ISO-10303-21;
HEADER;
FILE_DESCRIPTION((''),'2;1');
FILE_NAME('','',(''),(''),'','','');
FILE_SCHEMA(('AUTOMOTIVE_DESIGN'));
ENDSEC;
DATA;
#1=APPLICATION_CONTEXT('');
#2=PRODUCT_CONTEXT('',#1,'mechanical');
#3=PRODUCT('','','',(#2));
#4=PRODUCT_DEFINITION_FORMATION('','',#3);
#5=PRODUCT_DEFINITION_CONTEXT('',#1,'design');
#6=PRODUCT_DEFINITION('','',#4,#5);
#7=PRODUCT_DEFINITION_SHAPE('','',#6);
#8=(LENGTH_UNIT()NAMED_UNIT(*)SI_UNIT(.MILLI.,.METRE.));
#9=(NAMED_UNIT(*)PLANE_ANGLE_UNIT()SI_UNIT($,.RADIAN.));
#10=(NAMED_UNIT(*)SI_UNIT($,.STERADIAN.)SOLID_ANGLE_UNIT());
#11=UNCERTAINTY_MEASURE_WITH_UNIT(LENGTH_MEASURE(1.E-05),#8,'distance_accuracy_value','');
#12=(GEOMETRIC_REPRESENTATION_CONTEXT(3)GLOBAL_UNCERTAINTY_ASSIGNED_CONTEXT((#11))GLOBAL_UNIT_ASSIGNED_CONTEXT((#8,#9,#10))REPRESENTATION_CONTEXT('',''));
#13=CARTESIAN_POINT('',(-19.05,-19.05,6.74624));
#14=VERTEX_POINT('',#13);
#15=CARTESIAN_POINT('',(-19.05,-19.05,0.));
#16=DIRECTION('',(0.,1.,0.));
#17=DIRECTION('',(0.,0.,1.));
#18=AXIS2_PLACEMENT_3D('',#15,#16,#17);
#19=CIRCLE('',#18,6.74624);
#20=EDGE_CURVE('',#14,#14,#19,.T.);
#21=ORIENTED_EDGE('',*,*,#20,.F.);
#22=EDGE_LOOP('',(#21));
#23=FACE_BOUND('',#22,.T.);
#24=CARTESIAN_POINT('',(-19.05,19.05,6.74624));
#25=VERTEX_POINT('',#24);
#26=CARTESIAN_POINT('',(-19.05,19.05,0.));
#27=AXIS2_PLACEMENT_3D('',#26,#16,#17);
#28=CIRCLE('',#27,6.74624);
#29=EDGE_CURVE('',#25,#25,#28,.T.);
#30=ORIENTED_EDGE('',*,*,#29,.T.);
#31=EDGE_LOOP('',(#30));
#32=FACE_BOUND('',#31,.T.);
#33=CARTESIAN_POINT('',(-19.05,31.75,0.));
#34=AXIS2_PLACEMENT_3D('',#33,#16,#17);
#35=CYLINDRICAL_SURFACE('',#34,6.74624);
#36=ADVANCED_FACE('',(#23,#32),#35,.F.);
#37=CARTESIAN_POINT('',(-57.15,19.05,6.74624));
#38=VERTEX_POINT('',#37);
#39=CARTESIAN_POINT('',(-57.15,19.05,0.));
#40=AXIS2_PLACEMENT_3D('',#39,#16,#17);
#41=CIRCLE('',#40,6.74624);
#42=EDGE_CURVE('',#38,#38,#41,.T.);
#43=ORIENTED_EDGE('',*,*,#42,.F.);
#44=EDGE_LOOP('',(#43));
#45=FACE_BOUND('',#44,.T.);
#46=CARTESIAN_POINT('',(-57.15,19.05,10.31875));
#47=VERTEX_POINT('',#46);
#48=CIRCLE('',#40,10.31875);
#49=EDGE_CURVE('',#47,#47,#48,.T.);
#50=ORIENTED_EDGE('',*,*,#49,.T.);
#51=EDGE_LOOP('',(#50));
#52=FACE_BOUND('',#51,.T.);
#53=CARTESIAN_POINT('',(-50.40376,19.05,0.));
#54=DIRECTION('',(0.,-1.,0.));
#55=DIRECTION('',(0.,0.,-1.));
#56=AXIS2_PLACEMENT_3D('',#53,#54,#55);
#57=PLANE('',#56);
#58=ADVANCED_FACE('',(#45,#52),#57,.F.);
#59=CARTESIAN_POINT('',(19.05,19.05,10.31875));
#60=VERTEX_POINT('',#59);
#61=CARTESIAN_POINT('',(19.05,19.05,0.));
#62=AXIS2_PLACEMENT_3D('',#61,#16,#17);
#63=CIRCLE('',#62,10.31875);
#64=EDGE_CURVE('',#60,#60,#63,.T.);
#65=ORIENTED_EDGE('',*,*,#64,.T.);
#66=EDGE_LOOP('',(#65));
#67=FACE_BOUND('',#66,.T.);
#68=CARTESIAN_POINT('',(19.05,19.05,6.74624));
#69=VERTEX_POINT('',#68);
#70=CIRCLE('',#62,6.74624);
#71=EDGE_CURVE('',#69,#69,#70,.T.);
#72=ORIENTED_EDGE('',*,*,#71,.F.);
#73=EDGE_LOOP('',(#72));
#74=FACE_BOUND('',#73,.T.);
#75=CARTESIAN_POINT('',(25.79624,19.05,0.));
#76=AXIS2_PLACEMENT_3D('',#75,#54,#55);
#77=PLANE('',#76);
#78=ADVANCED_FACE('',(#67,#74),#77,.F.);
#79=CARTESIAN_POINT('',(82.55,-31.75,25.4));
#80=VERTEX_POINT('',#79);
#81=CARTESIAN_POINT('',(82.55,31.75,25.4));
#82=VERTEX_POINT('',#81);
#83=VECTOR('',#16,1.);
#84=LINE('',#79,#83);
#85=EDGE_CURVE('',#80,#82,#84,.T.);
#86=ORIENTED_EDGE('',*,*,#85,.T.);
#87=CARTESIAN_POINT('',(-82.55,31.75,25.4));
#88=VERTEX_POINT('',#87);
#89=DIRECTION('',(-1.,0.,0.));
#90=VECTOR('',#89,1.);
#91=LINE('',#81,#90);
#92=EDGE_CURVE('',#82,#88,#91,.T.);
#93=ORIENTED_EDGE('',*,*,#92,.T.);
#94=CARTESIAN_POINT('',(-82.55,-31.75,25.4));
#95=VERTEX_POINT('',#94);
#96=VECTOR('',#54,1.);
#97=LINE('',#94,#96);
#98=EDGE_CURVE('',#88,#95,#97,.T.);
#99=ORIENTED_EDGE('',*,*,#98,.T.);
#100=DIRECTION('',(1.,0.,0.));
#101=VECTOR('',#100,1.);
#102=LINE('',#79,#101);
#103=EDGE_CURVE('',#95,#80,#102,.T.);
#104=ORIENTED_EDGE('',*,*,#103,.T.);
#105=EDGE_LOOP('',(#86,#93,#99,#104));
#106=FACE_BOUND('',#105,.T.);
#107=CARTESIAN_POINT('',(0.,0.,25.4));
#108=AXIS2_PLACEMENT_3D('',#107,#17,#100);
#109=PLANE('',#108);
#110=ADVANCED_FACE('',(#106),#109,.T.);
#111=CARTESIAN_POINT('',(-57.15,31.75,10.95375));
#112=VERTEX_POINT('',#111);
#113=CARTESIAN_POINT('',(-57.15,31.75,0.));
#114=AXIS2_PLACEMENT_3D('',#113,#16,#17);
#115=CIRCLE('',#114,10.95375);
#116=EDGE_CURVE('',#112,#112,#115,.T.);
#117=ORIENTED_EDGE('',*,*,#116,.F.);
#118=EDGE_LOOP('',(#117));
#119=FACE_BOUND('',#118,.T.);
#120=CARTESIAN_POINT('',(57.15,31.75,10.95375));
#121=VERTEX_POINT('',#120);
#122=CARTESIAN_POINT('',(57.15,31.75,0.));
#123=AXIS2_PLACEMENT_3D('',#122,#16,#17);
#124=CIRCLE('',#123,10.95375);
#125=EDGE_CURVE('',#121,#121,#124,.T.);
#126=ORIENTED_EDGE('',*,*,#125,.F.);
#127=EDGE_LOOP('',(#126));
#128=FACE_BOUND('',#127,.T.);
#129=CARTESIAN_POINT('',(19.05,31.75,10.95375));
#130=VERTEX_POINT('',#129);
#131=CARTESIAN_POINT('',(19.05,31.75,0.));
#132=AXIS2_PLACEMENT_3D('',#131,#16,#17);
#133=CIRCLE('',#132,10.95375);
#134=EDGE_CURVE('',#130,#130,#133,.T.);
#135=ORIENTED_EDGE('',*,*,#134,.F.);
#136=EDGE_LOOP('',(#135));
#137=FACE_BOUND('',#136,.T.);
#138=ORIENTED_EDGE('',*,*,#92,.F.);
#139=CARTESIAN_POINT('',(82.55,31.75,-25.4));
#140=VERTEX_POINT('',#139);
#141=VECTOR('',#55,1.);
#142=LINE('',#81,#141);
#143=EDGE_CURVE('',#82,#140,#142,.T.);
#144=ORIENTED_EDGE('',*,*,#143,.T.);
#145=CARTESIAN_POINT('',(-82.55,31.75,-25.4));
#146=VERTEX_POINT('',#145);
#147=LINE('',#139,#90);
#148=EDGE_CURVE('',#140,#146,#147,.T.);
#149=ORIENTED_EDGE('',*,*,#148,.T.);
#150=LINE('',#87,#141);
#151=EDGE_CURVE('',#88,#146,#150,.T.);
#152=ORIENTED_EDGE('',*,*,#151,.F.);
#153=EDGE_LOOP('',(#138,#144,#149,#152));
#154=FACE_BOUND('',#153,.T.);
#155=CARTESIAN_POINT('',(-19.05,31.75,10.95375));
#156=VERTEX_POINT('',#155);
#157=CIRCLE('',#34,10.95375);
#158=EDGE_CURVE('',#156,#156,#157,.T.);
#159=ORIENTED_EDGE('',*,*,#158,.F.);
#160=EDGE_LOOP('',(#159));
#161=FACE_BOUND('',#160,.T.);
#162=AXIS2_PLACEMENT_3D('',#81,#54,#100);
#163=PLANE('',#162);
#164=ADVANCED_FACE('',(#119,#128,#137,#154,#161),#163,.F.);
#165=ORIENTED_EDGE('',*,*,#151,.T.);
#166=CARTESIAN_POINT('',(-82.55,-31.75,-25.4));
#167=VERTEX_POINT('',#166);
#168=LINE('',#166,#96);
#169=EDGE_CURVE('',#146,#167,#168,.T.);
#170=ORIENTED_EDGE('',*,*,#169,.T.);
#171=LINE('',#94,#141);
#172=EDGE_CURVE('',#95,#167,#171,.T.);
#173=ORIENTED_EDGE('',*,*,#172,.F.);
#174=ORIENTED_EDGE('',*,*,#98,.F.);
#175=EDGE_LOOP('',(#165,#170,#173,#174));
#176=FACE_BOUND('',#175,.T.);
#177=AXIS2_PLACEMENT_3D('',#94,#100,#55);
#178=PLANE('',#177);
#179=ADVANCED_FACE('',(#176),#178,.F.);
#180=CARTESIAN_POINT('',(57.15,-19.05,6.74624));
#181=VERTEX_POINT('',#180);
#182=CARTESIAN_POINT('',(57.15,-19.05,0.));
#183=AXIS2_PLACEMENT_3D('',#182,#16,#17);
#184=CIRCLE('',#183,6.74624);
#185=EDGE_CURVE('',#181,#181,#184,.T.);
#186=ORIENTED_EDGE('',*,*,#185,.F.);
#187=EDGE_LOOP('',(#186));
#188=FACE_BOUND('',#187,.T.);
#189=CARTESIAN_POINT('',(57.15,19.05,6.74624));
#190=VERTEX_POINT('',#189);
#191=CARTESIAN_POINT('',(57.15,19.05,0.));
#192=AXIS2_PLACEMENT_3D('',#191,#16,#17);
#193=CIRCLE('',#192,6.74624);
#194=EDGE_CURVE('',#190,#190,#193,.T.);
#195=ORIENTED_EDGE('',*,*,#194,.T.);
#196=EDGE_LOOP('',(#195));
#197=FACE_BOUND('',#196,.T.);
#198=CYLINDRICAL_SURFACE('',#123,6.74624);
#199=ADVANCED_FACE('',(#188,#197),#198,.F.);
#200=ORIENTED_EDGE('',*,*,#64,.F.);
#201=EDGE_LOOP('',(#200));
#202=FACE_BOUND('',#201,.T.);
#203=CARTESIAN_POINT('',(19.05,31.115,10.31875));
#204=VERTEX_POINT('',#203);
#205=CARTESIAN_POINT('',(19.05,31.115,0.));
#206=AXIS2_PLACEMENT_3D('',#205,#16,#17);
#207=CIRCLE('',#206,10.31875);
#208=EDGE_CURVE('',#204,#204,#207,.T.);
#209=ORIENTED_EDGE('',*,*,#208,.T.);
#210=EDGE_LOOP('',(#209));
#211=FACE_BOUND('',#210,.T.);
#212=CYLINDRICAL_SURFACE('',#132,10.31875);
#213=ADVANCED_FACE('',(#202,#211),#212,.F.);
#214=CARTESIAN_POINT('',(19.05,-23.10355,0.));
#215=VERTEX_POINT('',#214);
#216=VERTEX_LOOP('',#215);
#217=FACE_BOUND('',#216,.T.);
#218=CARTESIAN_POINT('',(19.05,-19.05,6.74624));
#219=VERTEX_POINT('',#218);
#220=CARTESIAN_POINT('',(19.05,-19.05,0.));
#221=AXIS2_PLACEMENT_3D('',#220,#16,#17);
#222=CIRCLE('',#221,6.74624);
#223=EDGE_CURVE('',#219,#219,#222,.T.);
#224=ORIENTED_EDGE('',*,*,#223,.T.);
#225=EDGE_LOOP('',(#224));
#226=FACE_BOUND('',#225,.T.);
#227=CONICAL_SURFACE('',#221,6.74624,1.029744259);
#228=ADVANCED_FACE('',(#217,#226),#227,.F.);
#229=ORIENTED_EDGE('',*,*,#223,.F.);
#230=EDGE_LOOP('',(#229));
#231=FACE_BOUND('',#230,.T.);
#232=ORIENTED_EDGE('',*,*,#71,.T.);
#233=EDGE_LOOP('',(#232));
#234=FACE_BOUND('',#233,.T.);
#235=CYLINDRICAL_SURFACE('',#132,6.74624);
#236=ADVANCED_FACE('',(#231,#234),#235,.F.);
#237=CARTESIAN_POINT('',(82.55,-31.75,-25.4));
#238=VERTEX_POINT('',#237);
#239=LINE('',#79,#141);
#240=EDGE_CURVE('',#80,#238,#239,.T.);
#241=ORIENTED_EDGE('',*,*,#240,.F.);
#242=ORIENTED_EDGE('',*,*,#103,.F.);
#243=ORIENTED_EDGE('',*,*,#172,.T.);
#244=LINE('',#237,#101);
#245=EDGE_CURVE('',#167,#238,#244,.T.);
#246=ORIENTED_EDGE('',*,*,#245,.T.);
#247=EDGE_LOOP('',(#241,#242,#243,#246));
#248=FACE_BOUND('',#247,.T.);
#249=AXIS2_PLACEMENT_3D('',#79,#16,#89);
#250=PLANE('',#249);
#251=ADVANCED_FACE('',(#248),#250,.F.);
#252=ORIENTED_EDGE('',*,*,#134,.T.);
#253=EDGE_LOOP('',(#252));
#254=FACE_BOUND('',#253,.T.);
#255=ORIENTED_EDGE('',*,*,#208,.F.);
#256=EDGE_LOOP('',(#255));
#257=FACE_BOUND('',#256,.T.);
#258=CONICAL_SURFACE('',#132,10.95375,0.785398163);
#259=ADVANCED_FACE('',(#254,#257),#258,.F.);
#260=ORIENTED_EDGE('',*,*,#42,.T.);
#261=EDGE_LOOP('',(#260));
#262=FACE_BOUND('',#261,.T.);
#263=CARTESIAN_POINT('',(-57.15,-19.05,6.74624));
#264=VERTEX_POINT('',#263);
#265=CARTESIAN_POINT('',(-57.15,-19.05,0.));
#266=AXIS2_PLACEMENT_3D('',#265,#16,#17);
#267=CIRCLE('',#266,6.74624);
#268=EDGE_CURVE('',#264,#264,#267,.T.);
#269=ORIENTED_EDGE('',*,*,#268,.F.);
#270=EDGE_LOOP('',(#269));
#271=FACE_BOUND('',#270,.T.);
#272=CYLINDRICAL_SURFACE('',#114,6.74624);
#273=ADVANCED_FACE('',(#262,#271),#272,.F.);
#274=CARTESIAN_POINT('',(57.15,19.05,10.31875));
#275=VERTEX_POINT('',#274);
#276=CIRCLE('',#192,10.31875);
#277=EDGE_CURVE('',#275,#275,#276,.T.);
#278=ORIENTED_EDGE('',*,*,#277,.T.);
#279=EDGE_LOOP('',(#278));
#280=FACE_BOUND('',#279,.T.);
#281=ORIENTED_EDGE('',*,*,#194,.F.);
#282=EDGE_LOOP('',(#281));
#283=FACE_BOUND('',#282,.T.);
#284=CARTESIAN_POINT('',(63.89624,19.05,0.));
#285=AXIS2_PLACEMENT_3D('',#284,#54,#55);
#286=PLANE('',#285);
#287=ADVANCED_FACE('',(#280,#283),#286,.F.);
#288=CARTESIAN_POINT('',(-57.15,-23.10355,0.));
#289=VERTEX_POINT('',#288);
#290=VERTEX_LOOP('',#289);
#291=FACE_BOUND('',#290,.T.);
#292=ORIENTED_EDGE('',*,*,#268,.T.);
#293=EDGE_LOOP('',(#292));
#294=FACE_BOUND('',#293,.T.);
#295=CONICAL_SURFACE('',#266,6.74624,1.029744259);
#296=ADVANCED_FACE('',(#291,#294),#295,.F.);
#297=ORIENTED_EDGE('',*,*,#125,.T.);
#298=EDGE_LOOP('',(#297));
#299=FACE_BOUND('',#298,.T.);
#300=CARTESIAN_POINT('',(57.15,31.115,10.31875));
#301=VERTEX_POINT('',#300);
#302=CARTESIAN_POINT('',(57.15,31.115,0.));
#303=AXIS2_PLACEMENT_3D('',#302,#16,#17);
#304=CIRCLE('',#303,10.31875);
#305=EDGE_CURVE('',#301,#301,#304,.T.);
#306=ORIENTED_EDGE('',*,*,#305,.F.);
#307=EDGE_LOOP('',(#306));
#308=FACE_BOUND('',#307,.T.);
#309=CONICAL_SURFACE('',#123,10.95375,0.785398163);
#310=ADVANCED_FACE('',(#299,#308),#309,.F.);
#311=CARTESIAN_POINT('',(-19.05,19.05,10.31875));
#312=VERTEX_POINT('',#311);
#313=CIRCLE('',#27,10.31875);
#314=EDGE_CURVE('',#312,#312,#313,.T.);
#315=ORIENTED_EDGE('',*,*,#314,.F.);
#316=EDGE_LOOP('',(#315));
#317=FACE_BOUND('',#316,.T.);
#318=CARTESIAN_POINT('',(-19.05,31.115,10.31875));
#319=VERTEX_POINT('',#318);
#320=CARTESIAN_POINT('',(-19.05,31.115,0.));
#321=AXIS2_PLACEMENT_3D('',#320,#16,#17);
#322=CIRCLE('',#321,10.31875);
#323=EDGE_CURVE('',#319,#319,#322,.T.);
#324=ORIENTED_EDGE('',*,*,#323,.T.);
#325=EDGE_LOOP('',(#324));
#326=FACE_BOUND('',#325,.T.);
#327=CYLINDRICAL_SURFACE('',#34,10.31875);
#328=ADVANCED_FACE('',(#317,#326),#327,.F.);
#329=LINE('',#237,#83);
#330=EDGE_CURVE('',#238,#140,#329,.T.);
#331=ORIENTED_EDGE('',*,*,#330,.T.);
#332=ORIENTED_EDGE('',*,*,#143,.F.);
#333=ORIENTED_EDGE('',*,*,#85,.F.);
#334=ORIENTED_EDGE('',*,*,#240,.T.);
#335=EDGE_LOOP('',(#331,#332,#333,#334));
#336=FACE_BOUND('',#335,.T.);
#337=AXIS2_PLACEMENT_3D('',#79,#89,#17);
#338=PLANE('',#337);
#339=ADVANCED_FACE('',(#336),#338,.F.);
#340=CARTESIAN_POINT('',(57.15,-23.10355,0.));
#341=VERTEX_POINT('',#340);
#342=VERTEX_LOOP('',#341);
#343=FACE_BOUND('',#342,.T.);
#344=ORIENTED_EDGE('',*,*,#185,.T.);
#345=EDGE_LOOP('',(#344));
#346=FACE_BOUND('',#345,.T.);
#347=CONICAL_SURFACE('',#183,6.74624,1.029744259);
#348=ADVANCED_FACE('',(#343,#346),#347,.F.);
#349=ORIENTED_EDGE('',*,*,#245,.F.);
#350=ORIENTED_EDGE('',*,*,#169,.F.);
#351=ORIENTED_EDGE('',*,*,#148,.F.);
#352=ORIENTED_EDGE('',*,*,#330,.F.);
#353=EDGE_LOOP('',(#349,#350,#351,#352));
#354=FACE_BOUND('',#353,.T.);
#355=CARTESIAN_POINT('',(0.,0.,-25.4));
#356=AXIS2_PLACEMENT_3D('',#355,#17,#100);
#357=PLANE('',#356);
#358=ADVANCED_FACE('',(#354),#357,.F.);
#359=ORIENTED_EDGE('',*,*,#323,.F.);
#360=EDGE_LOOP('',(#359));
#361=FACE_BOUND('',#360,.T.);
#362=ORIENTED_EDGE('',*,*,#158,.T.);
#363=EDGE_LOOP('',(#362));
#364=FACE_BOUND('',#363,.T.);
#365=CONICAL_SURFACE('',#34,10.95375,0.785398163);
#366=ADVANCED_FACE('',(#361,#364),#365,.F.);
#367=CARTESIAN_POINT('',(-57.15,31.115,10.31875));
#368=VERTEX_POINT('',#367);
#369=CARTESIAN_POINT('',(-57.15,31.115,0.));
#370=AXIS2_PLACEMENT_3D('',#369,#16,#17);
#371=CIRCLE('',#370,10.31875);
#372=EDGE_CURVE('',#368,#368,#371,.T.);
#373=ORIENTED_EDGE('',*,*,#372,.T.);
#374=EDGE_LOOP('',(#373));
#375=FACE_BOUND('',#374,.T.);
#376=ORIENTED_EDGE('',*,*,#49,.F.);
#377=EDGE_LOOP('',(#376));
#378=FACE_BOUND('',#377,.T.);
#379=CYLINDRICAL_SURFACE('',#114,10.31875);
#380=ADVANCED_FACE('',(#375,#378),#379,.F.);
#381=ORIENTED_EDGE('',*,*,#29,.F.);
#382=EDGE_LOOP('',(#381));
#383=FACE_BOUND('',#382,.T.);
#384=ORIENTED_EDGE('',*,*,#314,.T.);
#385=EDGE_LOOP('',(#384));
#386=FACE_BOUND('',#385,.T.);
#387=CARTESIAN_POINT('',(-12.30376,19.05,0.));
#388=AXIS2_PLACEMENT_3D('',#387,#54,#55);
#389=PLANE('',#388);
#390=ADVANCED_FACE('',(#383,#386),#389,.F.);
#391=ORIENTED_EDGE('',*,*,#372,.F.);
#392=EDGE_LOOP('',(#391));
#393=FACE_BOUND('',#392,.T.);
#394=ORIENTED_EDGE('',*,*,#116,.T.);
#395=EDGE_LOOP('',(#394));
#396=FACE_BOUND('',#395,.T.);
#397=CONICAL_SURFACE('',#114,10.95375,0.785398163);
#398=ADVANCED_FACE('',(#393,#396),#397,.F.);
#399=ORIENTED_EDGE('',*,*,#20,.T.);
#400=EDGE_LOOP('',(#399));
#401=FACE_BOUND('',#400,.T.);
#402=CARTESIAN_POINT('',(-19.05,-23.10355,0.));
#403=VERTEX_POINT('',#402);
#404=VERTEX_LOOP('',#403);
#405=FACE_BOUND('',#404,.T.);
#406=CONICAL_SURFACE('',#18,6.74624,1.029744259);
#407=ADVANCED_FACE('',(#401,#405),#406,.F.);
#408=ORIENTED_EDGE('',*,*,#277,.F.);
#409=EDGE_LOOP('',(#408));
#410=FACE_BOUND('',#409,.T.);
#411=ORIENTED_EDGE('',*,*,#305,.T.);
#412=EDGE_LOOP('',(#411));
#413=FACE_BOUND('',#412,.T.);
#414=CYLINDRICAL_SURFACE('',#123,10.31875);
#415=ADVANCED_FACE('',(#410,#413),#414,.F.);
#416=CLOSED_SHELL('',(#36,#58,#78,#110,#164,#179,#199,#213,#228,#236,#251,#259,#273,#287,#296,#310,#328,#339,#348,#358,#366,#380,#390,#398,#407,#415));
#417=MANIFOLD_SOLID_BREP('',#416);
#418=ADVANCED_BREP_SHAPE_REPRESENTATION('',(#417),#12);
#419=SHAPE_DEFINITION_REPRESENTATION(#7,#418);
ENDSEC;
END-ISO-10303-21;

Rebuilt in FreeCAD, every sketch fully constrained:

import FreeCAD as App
import Part
import Sketcher
from FreeCAD import Vector
Q = App.Units.Quantity

doc = App.newDocument("Part")
body = doc.addObject("PartDesign::Body", "Body")

sketch1 = body.newObject("Sketcher::SketchObject", "Sketch")
sketch1.AttachmentSupport = (doc.getObject("XY_Plane"), [""])
sketch1.MapMode = "FlatFace"
sketch1.addGeometry(Part.LineSegment(Vector(-82.55, 31.75, 0), Vector(-82.55, -31.75, 0)), False)
sketch1.addGeometry(Part.LineSegment(Vector(-82.55, -31.75, 0), Vector(82.55, -31.75, 0)), False)
sketch1.addGeometry(Part.LineSegment(Vector(82.55, -31.75, 0), Vector(82.55, 31.75, 0)), False)
sketch1.addGeometry(Part.LineSegment(Vector(82.55, 31.75, 0), Vector(-82.55, 31.75, 0)), False)
sketch1.addConstraint(Sketcher.Constraint("Coincident", 0, 2, 1, 1))
sketch1.addConstraint(Sketcher.Constraint("Coincident", 1, 2, 2, 1))
sketch1.addConstraint(Sketcher.Constraint("Coincident", 2, 2, 3, 1))
sketch1.addConstraint(Sketcher.Constraint("Coincident", 3, 2, 0, 1))
sketch1.addConstraint(Sketcher.Constraint("Vertical", 0))
sketch1.addConstraint(Sketcher.Constraint("Horizontal", 1))
sketch1.addConstraint(Sketcher.Constraint("Vertical", 2))
sketch1.addConstraint(Sketcher.Constraint("Horizontal", 3))
sketch1.addConstraint(Sketcher.Constraint("Symmetric", 0, 2, 2, 2, -1, 1))
sketch1.addConstraint(Sketcher.Constraint("DistanceX", 1, 1, 1, 2, Q("6.5 in")))
sketch1.addConstraint(Sketcher.Constraint("DistanceY", 0, 2, 0, 1, Q("2.5 in")))
pad1 = body.newObject("PartDesign::Pad", "Pad")
pad1.Profile = sketch1
pad1.Length = Q("2 in")
pad1.Midplane = True

sketch2 = body.newObject("Sketcher::SketchObject", "Sketch001")
sketch2.AttachmentSupport = (doc.getObject("YZ_Plane"), [""])
sketch2.MapMode = "FlatFace"
sketch2.AttachmentOffset = App.Placement(Vector(0, 0, -2.25 * 25.4), App.Rotation())
sketch2.addGeometry(Part.LineSegment(Vector(-23.10355, 0, 0), Vector(31.75, 0, 0)), False)
sketch2.addGeometry(Part.LineSegment(Vector(31.75, 0, 0), Vector(31.75, 10.95375, 0)), False)
sketch2.addGeometry(Part.LineSegment(Vector(31.75, 10.95375, 0), Vector(31.115, 10.31875, 0)), False)
sketch2.addGeometry(Part.LineSegment(Vector(31.115, 10.31875, 0), Vector(19.05, 10.31875, 0)), False)
sketch2.addGeometry(Part.LineSegment(Vector(19.05, 10.31875, 0), Vector(19.05, 6.74624, 0)), False)
sketch2.addGeometry(Part.LineSegment(Vector(19.05, 6.74624, 0), Vector(-19.05, 6.74624, 0)), False)
sketch2.addGeometry(Part.LineSegment(Vector(-19.05, 6.74624, 0), Vector(-23.10355, 0, 0)), False)
sketch2.addConstraint(Sketcher.Constraint("Coincident", 0, 2, 1, 1))
sketch2.addConstraint(Sketcher.Constraint("Coincident", 1, 2, 2, 1))
sketch2.addConstraint(Sketcher.Constraint("Coincident", 2, 2, 3, 1))
sketch2.addConstraint(Sketcher.Constraint("Coincident", 3, 2, 4, 1))
sketch2.addConstraint(Sketcher.Constraint("Coincident", 4, 2, 5, 1))
sketch2.addConstraint(Sketcher.Constraint("Coincident", 5, 2, 6, 1))
sketch2.addConstraint(Sketcher.Constraint("Coincident", 6, 2, 0, 1))
sketch2.addConstraint(Sketcher.Constraint("Horizontal", 0))
sketch2.addConstraint(Sketcher.Constraint("Vertical", 1))
sketch2.addConstraint(Sketcher.Constraint("Horizontal", 3))
sketch2.addConstraint(Sketcher.Constraint("Vertical", 4))
sketch2.addConstraint(Sketcher.Constraint("Horizontal", 5))
sketch2.addConstraint(Sketcher.Constraint("PointOnObject", 0, 2, -1))
sketch2.addConstraint(Sketcher.Constraint("DistanceX", 5, 2, 5, 1, Q("1.5 in")))
sketch2.addConstraint(Sketcher.Constraint("Angle", 2, Q("-135 deg")))
sketch2.addConstraint(Sketcher.Constraint("Angle", 6, Q("-121 deg")))
sketch2.addConstraint(Sketcher.Constraint("DistanceX", 5, 2, 1, 2, Q("2 in")))
sketch2.addConstraint(Sketcher.Constraint("DistanceX", 3, 2, 3, 1, Q("0.475 in")))
sketch2.addConstraint(Sketcher.Constraint("DistanceX", -1, 1, 0, 2, Q("1.25 in")))
sketch2.addConstraint(Sketcher.Constraint("DistanceY", -1, 1, 2, 2, Q("0.40625 in")))
sketch2.addConstraint(Sketcher.Constraint("DistanceY", -1, 1, 4, 2, Q("0.2656 in")))
groove = body.newObject("PartDesign::Groove", "Groove")
groove.Profile = sketch2
groove.ReferenceAxis = (sketch2, ["H_Axis"])
groove.Angle = 360
doc.recompute()

linearpattern = body.newObject("PartDesign::LinearPattern", "LinearPattern")
linearpattern.Originals = [groove]
linearpattern.Direction = (doc.getObject("X_Axis"), [""])
linearpattern.Mode = "offset"
linearpattern.Offset = Q("1.5 in")
linearpattern.Occurrences = 4
body.Tip = linearpattern

doc.recompute()
